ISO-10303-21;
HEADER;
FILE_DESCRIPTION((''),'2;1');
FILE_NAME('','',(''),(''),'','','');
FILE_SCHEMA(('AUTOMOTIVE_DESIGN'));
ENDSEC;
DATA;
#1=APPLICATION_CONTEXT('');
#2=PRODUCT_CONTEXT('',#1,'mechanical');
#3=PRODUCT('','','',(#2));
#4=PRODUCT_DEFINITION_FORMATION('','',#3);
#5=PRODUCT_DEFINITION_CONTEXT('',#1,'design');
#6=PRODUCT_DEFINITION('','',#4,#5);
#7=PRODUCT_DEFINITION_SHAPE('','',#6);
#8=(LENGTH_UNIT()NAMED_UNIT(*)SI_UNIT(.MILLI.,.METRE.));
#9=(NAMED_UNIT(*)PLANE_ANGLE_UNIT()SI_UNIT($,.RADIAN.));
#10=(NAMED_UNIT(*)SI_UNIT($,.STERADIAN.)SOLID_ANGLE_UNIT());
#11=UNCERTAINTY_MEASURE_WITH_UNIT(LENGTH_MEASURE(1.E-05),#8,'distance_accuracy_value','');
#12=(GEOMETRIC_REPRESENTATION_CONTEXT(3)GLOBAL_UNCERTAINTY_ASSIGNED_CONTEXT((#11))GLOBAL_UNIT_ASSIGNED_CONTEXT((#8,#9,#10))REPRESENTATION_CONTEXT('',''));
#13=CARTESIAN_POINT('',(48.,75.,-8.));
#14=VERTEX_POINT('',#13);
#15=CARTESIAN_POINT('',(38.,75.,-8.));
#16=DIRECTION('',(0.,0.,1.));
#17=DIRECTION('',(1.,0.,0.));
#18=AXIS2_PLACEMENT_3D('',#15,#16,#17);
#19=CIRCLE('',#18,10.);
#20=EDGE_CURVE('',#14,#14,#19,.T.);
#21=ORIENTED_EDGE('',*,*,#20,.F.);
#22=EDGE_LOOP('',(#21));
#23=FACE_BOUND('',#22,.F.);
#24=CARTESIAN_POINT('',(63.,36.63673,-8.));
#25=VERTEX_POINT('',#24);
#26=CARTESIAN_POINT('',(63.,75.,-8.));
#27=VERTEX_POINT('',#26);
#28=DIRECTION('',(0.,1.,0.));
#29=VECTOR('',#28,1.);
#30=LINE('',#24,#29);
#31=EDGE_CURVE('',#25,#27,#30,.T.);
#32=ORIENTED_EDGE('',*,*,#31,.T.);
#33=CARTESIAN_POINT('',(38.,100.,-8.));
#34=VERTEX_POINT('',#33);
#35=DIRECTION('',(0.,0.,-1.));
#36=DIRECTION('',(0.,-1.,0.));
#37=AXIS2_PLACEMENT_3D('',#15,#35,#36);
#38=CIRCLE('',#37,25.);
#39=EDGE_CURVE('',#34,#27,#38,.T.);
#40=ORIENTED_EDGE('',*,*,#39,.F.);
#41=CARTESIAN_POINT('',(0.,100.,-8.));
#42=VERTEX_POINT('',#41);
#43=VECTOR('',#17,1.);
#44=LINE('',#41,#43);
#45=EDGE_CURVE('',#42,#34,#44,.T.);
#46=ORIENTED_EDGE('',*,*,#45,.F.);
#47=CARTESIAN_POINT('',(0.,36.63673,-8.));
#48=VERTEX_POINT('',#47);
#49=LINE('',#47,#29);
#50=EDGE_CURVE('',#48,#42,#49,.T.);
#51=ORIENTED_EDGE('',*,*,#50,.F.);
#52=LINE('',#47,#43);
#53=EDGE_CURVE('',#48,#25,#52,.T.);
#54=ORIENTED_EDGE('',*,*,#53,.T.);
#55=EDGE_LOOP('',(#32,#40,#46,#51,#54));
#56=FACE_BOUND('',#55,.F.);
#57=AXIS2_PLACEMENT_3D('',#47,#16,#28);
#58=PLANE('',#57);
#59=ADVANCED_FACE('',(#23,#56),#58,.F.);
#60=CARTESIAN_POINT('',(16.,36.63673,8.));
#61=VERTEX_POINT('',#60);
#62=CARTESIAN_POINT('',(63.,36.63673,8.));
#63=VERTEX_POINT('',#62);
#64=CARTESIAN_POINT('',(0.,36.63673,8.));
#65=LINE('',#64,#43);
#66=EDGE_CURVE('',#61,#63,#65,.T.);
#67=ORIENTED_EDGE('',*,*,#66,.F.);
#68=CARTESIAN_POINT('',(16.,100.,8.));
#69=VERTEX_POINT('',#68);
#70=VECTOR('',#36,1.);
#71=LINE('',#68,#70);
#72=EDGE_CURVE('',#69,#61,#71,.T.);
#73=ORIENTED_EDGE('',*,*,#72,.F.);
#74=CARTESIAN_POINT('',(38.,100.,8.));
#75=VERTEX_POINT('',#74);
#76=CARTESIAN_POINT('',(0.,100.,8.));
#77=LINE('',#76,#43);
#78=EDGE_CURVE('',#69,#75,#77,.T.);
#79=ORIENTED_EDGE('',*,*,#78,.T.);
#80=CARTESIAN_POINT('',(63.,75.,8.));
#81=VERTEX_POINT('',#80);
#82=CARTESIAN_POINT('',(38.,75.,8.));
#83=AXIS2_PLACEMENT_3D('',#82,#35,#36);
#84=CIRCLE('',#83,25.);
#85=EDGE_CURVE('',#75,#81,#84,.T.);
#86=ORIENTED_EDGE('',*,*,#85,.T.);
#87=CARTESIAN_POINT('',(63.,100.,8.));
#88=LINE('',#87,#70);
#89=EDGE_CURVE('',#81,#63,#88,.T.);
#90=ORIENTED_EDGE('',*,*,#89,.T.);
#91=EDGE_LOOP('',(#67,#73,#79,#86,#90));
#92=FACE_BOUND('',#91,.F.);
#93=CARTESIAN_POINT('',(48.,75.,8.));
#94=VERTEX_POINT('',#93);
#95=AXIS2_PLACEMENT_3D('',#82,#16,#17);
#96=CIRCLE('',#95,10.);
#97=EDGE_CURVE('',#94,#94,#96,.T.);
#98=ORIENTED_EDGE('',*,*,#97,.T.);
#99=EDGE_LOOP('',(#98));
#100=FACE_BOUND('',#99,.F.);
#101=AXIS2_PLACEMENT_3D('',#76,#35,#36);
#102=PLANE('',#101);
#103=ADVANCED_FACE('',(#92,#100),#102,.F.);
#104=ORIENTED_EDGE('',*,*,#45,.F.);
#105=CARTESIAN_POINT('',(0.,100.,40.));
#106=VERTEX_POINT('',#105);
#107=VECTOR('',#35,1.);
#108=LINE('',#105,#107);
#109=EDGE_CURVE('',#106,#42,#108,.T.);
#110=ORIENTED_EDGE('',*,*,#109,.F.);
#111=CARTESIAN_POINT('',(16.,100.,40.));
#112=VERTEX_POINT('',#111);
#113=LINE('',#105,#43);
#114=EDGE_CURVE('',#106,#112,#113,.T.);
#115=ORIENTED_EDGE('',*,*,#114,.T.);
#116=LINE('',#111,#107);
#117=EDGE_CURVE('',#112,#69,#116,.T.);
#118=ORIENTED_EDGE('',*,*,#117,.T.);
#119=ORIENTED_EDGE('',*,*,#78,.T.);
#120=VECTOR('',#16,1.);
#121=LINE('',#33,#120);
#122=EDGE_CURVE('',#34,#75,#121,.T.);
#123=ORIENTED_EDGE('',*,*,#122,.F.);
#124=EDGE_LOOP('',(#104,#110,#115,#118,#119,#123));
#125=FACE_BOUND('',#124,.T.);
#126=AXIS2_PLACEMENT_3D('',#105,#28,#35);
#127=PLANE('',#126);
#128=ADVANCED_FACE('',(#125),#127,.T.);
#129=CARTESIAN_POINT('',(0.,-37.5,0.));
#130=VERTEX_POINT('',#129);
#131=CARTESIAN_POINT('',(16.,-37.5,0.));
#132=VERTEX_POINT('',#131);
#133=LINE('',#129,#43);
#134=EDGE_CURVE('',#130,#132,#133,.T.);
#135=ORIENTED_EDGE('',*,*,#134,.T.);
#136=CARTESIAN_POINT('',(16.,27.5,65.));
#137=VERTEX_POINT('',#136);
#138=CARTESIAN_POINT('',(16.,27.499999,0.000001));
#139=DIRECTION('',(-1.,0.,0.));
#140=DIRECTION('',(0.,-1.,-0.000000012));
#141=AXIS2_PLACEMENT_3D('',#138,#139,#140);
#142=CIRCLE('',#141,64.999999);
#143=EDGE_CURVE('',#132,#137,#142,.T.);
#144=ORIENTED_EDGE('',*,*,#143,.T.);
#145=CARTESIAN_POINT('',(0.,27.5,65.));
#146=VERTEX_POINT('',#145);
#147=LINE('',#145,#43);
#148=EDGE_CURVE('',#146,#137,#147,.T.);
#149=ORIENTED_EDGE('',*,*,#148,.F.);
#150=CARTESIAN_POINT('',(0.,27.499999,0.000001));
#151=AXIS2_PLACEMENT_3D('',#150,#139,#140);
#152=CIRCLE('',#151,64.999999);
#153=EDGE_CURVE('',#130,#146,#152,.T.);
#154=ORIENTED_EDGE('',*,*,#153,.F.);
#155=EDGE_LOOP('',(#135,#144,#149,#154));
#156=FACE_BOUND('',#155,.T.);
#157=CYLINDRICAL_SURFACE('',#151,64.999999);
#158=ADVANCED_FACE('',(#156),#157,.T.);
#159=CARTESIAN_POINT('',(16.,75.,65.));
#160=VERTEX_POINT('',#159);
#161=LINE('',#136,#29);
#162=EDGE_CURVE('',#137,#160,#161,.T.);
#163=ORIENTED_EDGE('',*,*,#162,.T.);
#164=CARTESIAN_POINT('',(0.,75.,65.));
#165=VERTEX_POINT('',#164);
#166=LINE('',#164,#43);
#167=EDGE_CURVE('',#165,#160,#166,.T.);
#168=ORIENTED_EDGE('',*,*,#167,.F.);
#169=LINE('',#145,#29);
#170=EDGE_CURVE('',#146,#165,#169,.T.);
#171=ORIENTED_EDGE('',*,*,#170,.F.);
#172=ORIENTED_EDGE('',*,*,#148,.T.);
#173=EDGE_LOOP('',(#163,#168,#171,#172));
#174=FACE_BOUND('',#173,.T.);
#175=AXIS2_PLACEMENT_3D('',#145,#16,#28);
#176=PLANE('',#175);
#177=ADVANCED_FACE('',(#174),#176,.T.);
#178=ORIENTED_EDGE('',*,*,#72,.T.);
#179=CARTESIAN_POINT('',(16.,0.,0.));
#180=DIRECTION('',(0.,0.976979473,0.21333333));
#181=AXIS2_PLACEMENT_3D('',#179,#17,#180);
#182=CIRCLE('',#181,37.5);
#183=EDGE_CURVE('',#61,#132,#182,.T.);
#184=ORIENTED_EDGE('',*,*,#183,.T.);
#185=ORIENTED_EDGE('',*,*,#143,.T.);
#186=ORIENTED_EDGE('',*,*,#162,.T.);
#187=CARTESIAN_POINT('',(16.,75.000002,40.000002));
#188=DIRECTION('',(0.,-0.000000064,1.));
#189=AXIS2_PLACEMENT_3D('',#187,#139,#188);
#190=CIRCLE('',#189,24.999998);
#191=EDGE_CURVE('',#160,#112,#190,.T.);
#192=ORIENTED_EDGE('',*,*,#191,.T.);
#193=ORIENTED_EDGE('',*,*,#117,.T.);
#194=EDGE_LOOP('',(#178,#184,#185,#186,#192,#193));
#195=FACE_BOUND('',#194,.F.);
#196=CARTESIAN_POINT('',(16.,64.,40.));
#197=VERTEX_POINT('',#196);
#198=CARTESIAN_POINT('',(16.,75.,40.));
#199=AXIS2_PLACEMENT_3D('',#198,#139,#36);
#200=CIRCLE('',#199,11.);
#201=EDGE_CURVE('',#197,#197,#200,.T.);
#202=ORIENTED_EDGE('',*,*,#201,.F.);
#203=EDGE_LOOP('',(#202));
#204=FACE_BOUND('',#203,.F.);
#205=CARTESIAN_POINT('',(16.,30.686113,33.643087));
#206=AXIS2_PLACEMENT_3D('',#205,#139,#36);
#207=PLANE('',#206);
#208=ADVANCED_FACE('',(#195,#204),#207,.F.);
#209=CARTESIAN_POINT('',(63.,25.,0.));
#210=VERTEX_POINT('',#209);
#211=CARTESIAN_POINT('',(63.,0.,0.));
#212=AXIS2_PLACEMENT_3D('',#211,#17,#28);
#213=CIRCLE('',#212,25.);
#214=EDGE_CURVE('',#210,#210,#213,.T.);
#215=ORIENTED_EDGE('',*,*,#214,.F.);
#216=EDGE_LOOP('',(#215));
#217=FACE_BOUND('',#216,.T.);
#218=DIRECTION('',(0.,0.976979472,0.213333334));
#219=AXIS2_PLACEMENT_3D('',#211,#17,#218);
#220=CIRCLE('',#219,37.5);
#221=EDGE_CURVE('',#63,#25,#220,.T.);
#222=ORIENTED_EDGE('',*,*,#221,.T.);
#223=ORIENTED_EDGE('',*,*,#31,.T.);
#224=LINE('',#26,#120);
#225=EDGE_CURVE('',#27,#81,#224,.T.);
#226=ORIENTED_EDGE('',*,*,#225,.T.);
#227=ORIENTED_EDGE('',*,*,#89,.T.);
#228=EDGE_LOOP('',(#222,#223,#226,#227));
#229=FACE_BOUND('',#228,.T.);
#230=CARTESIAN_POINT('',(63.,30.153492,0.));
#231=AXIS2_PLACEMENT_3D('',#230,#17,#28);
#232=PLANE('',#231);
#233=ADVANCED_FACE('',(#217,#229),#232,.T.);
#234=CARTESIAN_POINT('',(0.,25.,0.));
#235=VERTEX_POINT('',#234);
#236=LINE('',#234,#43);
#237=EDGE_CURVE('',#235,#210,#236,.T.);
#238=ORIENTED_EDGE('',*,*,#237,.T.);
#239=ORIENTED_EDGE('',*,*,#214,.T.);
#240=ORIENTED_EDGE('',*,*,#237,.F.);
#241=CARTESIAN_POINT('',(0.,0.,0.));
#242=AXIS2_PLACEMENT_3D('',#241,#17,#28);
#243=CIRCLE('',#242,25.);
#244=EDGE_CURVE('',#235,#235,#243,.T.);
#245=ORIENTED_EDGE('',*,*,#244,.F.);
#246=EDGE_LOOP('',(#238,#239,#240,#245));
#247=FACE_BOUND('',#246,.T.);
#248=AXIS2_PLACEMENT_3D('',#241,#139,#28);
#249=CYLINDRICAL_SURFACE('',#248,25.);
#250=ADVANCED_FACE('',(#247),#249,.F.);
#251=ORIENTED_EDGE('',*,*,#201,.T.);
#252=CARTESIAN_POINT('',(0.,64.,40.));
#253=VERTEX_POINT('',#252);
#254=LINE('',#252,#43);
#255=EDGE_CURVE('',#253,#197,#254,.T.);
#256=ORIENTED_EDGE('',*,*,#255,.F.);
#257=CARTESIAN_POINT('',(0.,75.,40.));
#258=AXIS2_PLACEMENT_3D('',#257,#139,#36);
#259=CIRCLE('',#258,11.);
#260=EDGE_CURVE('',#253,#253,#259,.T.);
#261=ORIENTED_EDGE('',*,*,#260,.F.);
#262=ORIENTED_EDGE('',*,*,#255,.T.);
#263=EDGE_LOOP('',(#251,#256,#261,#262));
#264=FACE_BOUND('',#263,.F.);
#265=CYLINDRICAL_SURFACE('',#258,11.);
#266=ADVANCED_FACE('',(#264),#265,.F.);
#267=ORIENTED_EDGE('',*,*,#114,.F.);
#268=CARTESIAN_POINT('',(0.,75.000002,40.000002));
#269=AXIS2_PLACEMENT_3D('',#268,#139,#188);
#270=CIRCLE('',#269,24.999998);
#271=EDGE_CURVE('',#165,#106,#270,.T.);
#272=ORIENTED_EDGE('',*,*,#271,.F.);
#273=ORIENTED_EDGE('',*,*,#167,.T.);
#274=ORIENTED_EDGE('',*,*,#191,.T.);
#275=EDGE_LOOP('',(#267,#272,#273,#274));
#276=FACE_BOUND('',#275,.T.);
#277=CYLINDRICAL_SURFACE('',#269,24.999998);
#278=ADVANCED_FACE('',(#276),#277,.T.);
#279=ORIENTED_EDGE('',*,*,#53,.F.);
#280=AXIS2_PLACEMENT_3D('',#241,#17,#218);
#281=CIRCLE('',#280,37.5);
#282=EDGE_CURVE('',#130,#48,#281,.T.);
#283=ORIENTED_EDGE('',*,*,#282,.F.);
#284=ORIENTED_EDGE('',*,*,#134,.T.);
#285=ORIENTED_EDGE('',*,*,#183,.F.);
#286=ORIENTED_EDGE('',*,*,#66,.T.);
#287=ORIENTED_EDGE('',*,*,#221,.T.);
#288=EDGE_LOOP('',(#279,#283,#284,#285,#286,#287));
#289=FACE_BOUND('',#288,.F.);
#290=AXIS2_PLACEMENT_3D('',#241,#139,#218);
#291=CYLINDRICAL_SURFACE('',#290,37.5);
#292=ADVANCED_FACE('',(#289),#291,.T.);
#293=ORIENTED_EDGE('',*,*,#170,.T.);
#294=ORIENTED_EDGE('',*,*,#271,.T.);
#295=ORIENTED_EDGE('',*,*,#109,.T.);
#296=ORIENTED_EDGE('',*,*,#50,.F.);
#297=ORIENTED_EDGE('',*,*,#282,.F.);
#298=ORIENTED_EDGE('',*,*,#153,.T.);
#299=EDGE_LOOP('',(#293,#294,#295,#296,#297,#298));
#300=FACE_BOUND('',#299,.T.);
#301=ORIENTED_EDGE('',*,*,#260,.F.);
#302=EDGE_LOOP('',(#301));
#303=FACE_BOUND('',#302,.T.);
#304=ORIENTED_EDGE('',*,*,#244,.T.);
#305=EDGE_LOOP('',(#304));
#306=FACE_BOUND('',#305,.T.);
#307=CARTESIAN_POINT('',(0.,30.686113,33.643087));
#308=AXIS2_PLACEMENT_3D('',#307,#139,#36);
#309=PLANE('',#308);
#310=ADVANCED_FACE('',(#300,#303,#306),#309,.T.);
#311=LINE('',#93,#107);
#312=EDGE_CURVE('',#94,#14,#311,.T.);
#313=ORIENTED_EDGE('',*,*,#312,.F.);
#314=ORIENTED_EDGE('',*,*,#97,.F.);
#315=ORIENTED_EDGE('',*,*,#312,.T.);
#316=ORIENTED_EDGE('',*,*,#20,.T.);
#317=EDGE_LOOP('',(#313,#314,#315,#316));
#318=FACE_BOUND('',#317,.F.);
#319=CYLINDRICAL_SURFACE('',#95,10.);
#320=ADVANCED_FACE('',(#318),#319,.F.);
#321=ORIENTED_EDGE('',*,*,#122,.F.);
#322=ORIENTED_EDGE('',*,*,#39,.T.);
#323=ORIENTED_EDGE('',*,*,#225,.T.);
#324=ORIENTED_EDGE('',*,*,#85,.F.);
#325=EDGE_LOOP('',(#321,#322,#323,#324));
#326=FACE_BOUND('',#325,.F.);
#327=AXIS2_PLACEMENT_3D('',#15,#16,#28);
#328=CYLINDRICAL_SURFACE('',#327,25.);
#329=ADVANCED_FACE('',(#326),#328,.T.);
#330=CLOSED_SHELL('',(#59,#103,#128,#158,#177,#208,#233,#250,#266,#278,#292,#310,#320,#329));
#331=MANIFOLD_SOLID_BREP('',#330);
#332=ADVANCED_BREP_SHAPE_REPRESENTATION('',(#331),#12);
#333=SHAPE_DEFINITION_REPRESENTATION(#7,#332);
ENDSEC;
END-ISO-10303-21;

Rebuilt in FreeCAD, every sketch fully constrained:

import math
import FreeCAD as App
import Part
import Sketcher
Q = App.Units.Quantity


def edges_at(feature, points):
    """Names of the edges that pass closest to the given points."""
    edges = feature.Shape.Edges
    near = lambda p: min(range(len(edges)), key=lambda i: edges[i].distToShape(Part.Vertex(*p))[0])
    return sorted({f"Edge{near(p) + 1}" for p in points})

doc = App.newDocument("Part")
body = doc.addObject("PartDesign::Body", "Body")

sketch1 = doc.addObject("Sketcher::SketchObject", "Sketch")
body.addObject(sketch1)
sketch1.AttachmentSupport = (doc.YZ_Plane, [""])
sketch1.MapMode = "FlatFace"
sketch1.addGeometry([
    Part.LineSegment(App.Vector(100, 8, 0), App.Vector(36.63673, 8, 0)),
    Part.ArcOfCircle(Part.Circle(App.Vector(0, 0, 0), App.Vector(0, 0, 1), 37.5), math.radians(12.317766), math.radians(347.682234)),
    Part.LineSegment(App.Vector(36.63673, -8, 0), App.Vector(100, -8, 0)),
    Part.LineSegment(App.Vector(100, -8, 0), App.Vector(100, 8, 0)),
    Part.Circle(App.Vector(0, 0, 0), App.Vector(0, 0, 1), 25),
], False)
sketch1.addConstraint([
    Sketcher.Constraint("Coincident", 0, 2, 1, 1),
    Sketcher.Constraint("Coincident", 1, 2, 2, 1),
    Sketcher.Constraint("Coincident", 2, 2, 3, 1),
    Sketcher.Constraint("Coincident", 3, 2, 0, 1),
    Sketcher.Constraint("Horizontal", 0),
    Sketcher.Constraint("Horizontal", 2),
    Sketcher.Constraint("Vertical", 3),
    Sketcher.Constraint("Coincident", 1, 3, -1, 1),
    Sketcher.Constraint("Coincident", 4, 3, -1, 1),
    Sketcher.Constraint("Vertical", 0, 2, 1, 2),
    Sketcher.Constraint("Diameter", 4, Q("50 mm")),
    Sketcher.Constraint("Radius", 1, Q("37.5 mm")),
    Sketcher.Constraint("DistanceY", 3, 1, 3, 2, Q("16 mm")),
    Sketcher.Constraint("DistanceX", -1, 1, 2, 2, Q("100 mm")),
])
pad1 = doc.addObject("PartDesign::Pad", "Pad")
body.addObject(pad1)
pad1.Profile = sketch1
pad1.Length = 63

sketch2 = doc.addObject("Sketcher::SketchObject", "Sketch001")
body.addObject(sketch2)
sketch2.AttachmentSupport = (doc.YZ_Plane, [""])
sketch2.MapMode = "FlatFace"
sketch2.addGeometry([
    Part.LineSegment(App.Vector(27.5, 65, 0), App.Vector(75, 65, 0)),
    Part.ArcOfCircle(Part.Circle(App.Vector(75.000002, 40.000002, 0), App.Vector(0, 0, 1), 24.999998), math.radians(-0.000004), math.radians(90.000004)),
    Part.LineSegment(App.Vector(100, 40, 0), App.Vector(100, 8, 0)),
    Part.LineSegment(App.Vector(100, 8, 0), App.Vector(36.63673, 8, 0)),
    Part.ArcOfCircle(Part.Circle(App.Vector(0, 0, 0), App.Vector(0, 0, 1), 37.5), math.radians(12.317766), math.radians(180)),
    Part.ArcOfCircle(Part.Circle(App.Vector(27.499999, 0.000001, 0), App.Vector(0, 0, 1), 64.999999), math.radians(89.999999), math.radians(180.000001)),
    Part.Circle(App.Vector(75, 40, 0), App.Vector(0, 0, 1), 11),
], False)
sketch2.addConstraint([
    Sketcher.Constraint("Tangent", 0, 2, 1, 2),
    Sketcher.Constraint("Tangent", 1, 1, 2, 1),
    Sketcher.Constraint("Coincident", 2, 2, 3, 1),
    Sketcher.Constraint("Coincident", 3, 2, 4, 1),
    Sketcher.Constraint("Tangent", 4, 2, 5, 2),
    Sketcher.Constraint("Tangent", 5, 1, 0, 1),
    Sketcher.Constraint("Horizontal", 0),
    Sketcher.Constraint("Vertical", 2),
    Sketcher.Constraint("Horizontal", 3),
    Sketcher.Constraint("Coincident", 4, 3, -1, 1),
    Sketcher.Constraint("Coincident", 6, 3, 1, 3),
    Sketcher.Constraint("PointOnObject", 5, 3, -1),
    Sketcher.Constraint("Diameter", 6, Q("22 mm")),
    Sketcher.Constraint("Radius", 1, Q("24.999998 mm")),
    Sketcher.Constraint("Radius", 5, Q("64.999999 mm")),
    Sketcher.Constraint("Radius", 4, Q("37.5 mm")),
    Sketcher.Constraint("DistanceY", 2, 2, 2, 1, Q("32 mm")),
    Sketcher.Constraint("DistanceX", 0, 1, 0, 2, Q("47.5 mm")),
])
pad2 = doc.addObject("PartDesign::Pad", "Pad001")
body.addObject(pad2)
pad2.Profile = sketch2
pad2.Length = 16

sketch3 = doc.addObject("Sketcher::SketchObject", "Sketch002")
body.addObject(sketch3)
sketch3.AttachmentSupport = (doc.XY_Plane, [""])
sketch3.MapMode = "FlatFace"
sketch3.AttachmentOffset = App.Placement(App.Vector(0, 0, 8), App.Rotation())
sketch3.addGeometry(Part.Circle(App.Vector(38, 75, 0), App.Vector(0, 0, 1), 10), False)
sketch3.addConstraint([
    Sketcher.Constraint("Diameter", 0, Q("20 mm")),
    Sketcher.Constraint("DistanceX", -1, 1, 0, 3, Q("38 mm")),
    Sketcher.Constraint("DistanceY", -1, 1, 0, 3, Q("75 mm")),
])
pocket1 = doc.addObject("PartDesign::Pocket", "Pocket")
body.addObject(pocket1)
pocket1.Profile = sketch3
pocket1.Length = 100
doc.recompute()

fillet = doc.addObject("PartDesign::Fillet", "Fillet")
body.addObject(fillet)
fillet.Base = (pocket1, edges_at(pocket1, [(63, 100, 0)]))
fillet.Radius = 25

doc.recompute()
